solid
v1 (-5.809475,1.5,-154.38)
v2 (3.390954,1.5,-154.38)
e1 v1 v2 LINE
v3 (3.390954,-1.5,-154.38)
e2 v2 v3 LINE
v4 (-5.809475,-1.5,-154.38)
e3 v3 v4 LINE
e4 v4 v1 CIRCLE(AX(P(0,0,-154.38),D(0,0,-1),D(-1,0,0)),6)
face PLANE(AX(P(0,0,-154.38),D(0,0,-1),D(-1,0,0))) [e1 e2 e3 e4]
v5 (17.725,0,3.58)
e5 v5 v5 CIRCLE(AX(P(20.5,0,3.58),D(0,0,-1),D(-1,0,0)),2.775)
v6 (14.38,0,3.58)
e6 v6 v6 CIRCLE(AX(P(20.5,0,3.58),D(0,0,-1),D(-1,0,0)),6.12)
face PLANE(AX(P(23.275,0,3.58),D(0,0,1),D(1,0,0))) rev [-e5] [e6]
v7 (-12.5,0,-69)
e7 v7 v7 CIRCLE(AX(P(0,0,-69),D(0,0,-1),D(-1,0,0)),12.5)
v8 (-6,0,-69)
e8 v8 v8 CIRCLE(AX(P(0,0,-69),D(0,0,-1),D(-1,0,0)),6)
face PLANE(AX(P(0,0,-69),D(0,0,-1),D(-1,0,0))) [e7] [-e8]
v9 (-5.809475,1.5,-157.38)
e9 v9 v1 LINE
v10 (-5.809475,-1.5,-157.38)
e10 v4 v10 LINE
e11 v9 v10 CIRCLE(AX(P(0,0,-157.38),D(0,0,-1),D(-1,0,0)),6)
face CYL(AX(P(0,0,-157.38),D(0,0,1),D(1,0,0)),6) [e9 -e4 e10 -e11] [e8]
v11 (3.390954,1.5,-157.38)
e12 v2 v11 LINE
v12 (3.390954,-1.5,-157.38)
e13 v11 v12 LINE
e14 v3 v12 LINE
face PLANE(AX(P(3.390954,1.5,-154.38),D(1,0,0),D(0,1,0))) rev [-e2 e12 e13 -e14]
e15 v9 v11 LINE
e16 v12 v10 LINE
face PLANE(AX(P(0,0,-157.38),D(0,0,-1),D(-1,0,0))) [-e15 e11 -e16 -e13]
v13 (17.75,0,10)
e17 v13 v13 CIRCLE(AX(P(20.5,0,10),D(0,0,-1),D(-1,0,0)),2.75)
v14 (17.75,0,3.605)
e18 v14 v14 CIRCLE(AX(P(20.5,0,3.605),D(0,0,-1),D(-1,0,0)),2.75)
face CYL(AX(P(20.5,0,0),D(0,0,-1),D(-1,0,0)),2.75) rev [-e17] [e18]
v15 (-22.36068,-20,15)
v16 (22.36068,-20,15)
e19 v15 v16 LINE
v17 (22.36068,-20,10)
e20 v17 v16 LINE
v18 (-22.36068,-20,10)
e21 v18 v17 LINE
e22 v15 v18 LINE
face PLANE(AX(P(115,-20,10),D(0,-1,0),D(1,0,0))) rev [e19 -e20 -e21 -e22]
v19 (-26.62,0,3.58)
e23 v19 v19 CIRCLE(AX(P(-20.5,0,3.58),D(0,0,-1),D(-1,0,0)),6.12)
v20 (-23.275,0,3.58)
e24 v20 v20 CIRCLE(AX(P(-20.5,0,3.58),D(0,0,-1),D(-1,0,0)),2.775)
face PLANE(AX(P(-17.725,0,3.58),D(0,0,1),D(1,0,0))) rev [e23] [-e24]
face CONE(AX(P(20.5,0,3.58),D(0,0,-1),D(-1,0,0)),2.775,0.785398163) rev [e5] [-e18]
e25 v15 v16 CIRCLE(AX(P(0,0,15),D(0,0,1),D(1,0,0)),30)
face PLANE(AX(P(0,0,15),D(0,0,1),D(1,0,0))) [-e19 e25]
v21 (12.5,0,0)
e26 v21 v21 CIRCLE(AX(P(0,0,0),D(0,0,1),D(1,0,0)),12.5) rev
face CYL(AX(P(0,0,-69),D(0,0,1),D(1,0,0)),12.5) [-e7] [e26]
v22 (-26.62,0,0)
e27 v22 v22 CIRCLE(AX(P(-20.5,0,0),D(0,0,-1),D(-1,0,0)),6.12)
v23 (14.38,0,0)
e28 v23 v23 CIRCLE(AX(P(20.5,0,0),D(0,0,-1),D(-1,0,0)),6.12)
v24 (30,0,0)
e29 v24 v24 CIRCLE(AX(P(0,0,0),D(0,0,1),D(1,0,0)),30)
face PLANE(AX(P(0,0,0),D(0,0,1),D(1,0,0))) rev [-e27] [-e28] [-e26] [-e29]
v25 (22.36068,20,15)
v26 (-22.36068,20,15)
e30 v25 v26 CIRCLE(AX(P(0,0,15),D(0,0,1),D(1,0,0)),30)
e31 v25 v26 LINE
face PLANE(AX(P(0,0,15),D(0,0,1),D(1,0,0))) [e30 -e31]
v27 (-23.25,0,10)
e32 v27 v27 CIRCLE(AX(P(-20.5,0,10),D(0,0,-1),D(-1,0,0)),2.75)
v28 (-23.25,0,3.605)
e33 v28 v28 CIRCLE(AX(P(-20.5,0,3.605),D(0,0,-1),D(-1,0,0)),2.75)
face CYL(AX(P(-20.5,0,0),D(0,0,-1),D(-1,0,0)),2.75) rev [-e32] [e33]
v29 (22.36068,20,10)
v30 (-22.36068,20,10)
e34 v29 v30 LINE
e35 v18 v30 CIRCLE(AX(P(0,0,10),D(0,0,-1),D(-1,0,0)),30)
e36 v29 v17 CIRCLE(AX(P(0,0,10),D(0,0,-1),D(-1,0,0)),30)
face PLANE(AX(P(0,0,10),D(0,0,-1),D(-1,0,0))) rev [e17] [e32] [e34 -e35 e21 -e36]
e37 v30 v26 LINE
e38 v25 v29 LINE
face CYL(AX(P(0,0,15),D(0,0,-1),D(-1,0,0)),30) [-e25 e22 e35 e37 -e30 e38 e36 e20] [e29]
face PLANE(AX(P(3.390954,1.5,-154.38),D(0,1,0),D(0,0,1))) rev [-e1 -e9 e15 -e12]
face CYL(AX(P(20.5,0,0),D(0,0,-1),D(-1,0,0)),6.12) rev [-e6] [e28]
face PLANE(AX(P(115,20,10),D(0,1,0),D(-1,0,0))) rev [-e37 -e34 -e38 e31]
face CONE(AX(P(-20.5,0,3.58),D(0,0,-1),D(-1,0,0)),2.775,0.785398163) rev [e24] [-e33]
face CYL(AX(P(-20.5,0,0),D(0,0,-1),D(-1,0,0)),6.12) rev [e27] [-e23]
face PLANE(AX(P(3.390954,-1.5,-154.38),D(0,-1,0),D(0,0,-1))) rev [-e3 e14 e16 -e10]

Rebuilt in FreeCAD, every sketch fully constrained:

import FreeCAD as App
import Part
import Sketcher
Q = App.Units.Quantity


def add_polygon(sketch, points):
    """Adds a closed chain of lines whose ends are joined by coincident constraints."""
    first, n = sketch.GeometryCount, len(points)
    for a, b in zip(points, points[1:] + points[:1]):
        sketch.addGeometry(Part.LineSegment(App.Vector(*a, 0), App.Vector(*b, 0)), False)
    for i in range(n):
        sketch.addConstraint(Sketcher.Constraint("Coincident", first + i, 2, first + (i + 1) % n, 1))

doc = App.newDocument("Part")
params = doc.addObject("Spreadsheet::Sheet", "Params")
for row, (alias, value) in enumerate([
    ("sketch1_diameter", "60 mm"),
    ("pad1_length", "15 mm"),
    ("sketch2_diameter", "25 mm"),
    ("pad2_length", "69 mm"),
    ("sketch3_width", "230 mm"),
    ("sketch3_height", "40 mm"),
    ("pocket1_length", "5 mm"),
    ("sketch4_height", "15 mm"),
    ("sketch4_width", "6.12 mm"),
    ("sketch4_width2", "2.75 mm"),
    ("sketch4_height2", "3.58 mm"),
    ("groove_angle", "360 deg"),
    ("linearpattern_pitch", "41 mm"),
    ("sketch5_diameter", "12 mm"),
    ("pad3_length", "88.38 mm"),
    ("sketch6_height", "3 mm"),
    ("pocket2_length", "3 mm"),
], start=1):
    params.set(f"A{row}", alias)
    params.set(f"B{row}", "=" + value)
    params.setAlias(f"B{row}", alias)

body = doc.addObject("PartDesign::Body", "Body")

sketch1 = body.newObject("Sketcher::SketchObject", "Sketch")
sketch1.AttachmentSupport = (doc.getObject("XY_Plane"), [""])
sketch1.MapMode = "FlatFace"
sketch1.addGeometry(Part.Circle(App.Vector(0, 0, 0), App.Vector(0, 0, 1), 30), False)
sketch1.addConstraint(Sketcher.Constraint("Coincident", 0, 3, -1, 1))
sketch1.addConstraint(Sketcher.Constraint("Diameter", 0, Q("60 mm")))
sketch1.setExpression("Constraints[1]", "Params.sketch1_diameter")
pad1 = body.newObject("PartDesign::Pad", "Pad")
pad1.Profile = sketch1
pad1.setExpression("Length", "Params.pad1_length")

sketch2 = body.newObject("Sketcher::SketchObject", "Sketch001")
sketch2.AttachmentSupport = (doc.getObject("XY_Plane"), [""])
sketch2.MapMode = "FlatFace"
sketch2.addGeometry(Part.Circle(App.Vector(0, 0, 0), App.Vector(0, 0, 1), 12.5), False)
sketch2.addConstraint(Sketcher.Constraint("Coincident", 0, 3, -1, 1))
sketch2.addConstraint(Sketcher.Constraint("Diameter", 0, Q("25 mm")))
sketch2.setExpression("Constraints[1]", "Params.sketch2_diameter")
pad2 = body.newObject("PartDesign::Pad", "Pad001")
pad2.Profile = sketch2
pad2.setExpression("Length", "Params.pad2_length")
pad2.Reversed = True

sketch3 = body.newObject("Sketcher::SketchObject", "Sketch002")
sketch3.AttachmentSupport = (doc.getObject("XY_Plane"), [""])
sketch3.MapMode = "FlatFace"
sketch3.AttachmentOffset = App.Placement(App.Vector(0, 0, 15), App.Rotation())
add_polygon(sketch3, [(-115, 20), (-115, -20), (115, -20), (115, 20)])
sketch3.addConstraint(Sketcher.Constraint("Vertical", 0))
sketch3.addConstraint(Sketcher.Constraint("Horizontal", 1))
sketch3.addConstraint(Sketcher.Constraint("Vertical", 2))
sketch3.addConstraint(Sketcher.Constraint("Horizontal", 3))
sketch3.addConstraint(Sketcher.Constraint("Symmetric", 0, 2, 2, 2, -1, 1))
sketch3.addConstraint(Sketcher.Constraint("DistanceX", 1, 1, 1, 2, Q("230 mm")))
sketch3.addConstraint(Sketcher.Constraint("DistanceY", 0, 2, 0, 1, Q("40 mm")))
sketch3.setExpression("Constraints[9]", "Params.sketch3_width")
sketch3.setExpression("Constraints[10]", "Params.sketch3_height")
pocket1 = body.newObject("PartDesign::Pocket", "Pocket")
pocket1.Profile = sketch3
pocket1.setExpression("Length", "Params.pocket1_length")

sketch4 = body.newObject("Sketcher::SketchObject", "Sketch003")
sketch4.AttachmentSupport = (doc.getObject("YZ_Plane"), [""])
sketch4.MapMode = "FlatFace"
sketch4.AttachmentOffset = App.Placement(App.Vector(0, 0, -20.5), App.Rotation())
add_polygon(sketch4, [(0, 15), (0, 0), (6.12, 0), (6.12, 3.58), (2.775, 3.58), (2.75, 3.605), (2.75, 15)])
sketch4.addConstraint(Sketcher.Constraint("Vertical", 0))
sketch4.addConstraint(Sketcher.Constraint("Horizontal", 1))
sketch4.addConstraint(Sketcher.Constraint("Vertical", 2))
sketch4.addConstraint(Sketcher.Constraint("Horizontal", 3))
sketch4.addConstraint(Sketcher.Constraint("Vertical", 5))
sketch4.addConstraint(Sketcher.Constraint("Horizontal", 6))
sketch4.addConstraint(Sketcher.Constraint("Coincident", 0, 2, -1, 1))
sketch4.addConstraint(Sketcher.Constraint("DistanceY", 0, 2, 0, 1, Q("15 mm")))
sketch4.addConstraint(Sketcher.Constraint("Angle", 4, Q("135 deg")))
sketch4.addConstraint(Sketcher.Constraint("DistanceX", 1, 1, 1, 2, Q("6.12 mm")))
sketch4.addConstraint(Sketcher.Constraint("DistanceX", 6, 2, 6, 1, Q("2.75 mm")))
sketch4.addConstraint(Sketcher.Constraint("DistanceY", 2, 1, 2, 2, Q("3.58 mm")))
sketch4.addConstraint(Sketcher.Constraint("DistanceX", 3, 2, 3, 1, Q("3.345 mm")))
sketch4.setExpression("Constraints[14]", "Params.sketch4_height")
sketch4.setExpression("Constraints[16]", "Params.sketch4_width")
sketch4.setExpression("Constraints[17]", "Params.sketch4_width2")
sketch4.setExpression("Constraints[18]", "Params.sketch4_height2")
groove = body.newObject("PartDesign::Groove", "Groove")
groove.Profile = sketch4
groove.ReferenceAxis = (sketch4, ["V_Axis"])
groove.setExpression("Angle", "Params.groove_angle")
doc.recompute()

linearpattern = body.newObject("PartDesign::LinearPattern", "LinearPattern")
linearpattern.Originals = [groove]
linearpattern.Direction = (doc.getObject("X_Axis"), [""])
linearpattern.Mode = "offset"
linearpattern.setExpression("Offset", "Params.linearpattern_pitch")
linearpattern.Occurrences = 2
body.Tip = linearpattern

sketch5 = body.newObject("Sketcher::SketchObject", "Sketch004")
sketch5.AttachmentSupport = (doc.getObject("XY_Plane"), [""])
sketch5.MapMode = "FlatFace"
sketch5.AttachmentOffset = App.Placement(App.Vector(0, 0, -69), App.Rotation())
sketch5.addGeometry(Part.Circle(App.Vector(0, 0, 0), App.Vector(0, 0, 1), 6), False)
sketch5.addConstraint(Sketcher.Constraint("Coincident", 0, 3, -1, 1))
sketch5.addConstraint(Sketcher.Constraint("Diameter", 0, Q("12 mm")))
sketch5.setExpression("Constraints[1]", "Params.sketch5_diameter")
pad3 = body.newObject("PartDesign::Pad", "Pad002")
pad3.Profile = sketch5
pad3.setExpression("Length", "Params.pad3_length")
pad3.Reversed = True

sketch6 = body.newObject("Sketcher::SketchObject", "Sketch005")
sketch6.AttachmentSupport = (doc.getObject("XY_Plane"), [""])
sketch6.MapMode = "FlatFace"
sketch6.AttachmentOffset = App.Placement(App.Vector(0, 0, -157.38), App.Rotation())
add_polygon(sketch6, [(3.390954, 1.5), (3.390954, -1.5), (-6.965369, -1.5), (-6.965369, 1.5)])
sketch6.addConstraint(Sketcher.Constraint("Vertical", 0))
sketch6.addConstraint(Sketcher.Constraint("Horizontal", 1))
sketch6.addConstraint(Sketcher.Constraint("Vertical", 2))
sketch6.addConstraint(Sketcher.Constraint("Horizontal", 3))
sketch6.addConstraint(Sketcher.Constraint("DistanceY", 0, 2, 0, 1, Q("3 mm")))
sketch6.addConstraint(Sketcher.Constraint("DistanceY", 0, 2, -1, 1, Q("1.5 mm")))
sketch6.addConstraint(Sketcher.Constraint("DistanceX", 1, 2, 1, 1, Q("10.356322 mm")))
sketch6.addConstraint(Sketcher.Constraint("DistanceX", 1, 2, -1, 1, Q("6.965369 mm")))
sketch6.setExpression("Constraints[8]", "Params.sketch6_height")
pocket2 = body.newObject("PartDesign::Pocket", "Pocket001")
pocket2.Profile = sketch6
pocket2.setExpression("Length", "Params.pocket2_length")
pocket2.Reversed = True

doc.recompute()
